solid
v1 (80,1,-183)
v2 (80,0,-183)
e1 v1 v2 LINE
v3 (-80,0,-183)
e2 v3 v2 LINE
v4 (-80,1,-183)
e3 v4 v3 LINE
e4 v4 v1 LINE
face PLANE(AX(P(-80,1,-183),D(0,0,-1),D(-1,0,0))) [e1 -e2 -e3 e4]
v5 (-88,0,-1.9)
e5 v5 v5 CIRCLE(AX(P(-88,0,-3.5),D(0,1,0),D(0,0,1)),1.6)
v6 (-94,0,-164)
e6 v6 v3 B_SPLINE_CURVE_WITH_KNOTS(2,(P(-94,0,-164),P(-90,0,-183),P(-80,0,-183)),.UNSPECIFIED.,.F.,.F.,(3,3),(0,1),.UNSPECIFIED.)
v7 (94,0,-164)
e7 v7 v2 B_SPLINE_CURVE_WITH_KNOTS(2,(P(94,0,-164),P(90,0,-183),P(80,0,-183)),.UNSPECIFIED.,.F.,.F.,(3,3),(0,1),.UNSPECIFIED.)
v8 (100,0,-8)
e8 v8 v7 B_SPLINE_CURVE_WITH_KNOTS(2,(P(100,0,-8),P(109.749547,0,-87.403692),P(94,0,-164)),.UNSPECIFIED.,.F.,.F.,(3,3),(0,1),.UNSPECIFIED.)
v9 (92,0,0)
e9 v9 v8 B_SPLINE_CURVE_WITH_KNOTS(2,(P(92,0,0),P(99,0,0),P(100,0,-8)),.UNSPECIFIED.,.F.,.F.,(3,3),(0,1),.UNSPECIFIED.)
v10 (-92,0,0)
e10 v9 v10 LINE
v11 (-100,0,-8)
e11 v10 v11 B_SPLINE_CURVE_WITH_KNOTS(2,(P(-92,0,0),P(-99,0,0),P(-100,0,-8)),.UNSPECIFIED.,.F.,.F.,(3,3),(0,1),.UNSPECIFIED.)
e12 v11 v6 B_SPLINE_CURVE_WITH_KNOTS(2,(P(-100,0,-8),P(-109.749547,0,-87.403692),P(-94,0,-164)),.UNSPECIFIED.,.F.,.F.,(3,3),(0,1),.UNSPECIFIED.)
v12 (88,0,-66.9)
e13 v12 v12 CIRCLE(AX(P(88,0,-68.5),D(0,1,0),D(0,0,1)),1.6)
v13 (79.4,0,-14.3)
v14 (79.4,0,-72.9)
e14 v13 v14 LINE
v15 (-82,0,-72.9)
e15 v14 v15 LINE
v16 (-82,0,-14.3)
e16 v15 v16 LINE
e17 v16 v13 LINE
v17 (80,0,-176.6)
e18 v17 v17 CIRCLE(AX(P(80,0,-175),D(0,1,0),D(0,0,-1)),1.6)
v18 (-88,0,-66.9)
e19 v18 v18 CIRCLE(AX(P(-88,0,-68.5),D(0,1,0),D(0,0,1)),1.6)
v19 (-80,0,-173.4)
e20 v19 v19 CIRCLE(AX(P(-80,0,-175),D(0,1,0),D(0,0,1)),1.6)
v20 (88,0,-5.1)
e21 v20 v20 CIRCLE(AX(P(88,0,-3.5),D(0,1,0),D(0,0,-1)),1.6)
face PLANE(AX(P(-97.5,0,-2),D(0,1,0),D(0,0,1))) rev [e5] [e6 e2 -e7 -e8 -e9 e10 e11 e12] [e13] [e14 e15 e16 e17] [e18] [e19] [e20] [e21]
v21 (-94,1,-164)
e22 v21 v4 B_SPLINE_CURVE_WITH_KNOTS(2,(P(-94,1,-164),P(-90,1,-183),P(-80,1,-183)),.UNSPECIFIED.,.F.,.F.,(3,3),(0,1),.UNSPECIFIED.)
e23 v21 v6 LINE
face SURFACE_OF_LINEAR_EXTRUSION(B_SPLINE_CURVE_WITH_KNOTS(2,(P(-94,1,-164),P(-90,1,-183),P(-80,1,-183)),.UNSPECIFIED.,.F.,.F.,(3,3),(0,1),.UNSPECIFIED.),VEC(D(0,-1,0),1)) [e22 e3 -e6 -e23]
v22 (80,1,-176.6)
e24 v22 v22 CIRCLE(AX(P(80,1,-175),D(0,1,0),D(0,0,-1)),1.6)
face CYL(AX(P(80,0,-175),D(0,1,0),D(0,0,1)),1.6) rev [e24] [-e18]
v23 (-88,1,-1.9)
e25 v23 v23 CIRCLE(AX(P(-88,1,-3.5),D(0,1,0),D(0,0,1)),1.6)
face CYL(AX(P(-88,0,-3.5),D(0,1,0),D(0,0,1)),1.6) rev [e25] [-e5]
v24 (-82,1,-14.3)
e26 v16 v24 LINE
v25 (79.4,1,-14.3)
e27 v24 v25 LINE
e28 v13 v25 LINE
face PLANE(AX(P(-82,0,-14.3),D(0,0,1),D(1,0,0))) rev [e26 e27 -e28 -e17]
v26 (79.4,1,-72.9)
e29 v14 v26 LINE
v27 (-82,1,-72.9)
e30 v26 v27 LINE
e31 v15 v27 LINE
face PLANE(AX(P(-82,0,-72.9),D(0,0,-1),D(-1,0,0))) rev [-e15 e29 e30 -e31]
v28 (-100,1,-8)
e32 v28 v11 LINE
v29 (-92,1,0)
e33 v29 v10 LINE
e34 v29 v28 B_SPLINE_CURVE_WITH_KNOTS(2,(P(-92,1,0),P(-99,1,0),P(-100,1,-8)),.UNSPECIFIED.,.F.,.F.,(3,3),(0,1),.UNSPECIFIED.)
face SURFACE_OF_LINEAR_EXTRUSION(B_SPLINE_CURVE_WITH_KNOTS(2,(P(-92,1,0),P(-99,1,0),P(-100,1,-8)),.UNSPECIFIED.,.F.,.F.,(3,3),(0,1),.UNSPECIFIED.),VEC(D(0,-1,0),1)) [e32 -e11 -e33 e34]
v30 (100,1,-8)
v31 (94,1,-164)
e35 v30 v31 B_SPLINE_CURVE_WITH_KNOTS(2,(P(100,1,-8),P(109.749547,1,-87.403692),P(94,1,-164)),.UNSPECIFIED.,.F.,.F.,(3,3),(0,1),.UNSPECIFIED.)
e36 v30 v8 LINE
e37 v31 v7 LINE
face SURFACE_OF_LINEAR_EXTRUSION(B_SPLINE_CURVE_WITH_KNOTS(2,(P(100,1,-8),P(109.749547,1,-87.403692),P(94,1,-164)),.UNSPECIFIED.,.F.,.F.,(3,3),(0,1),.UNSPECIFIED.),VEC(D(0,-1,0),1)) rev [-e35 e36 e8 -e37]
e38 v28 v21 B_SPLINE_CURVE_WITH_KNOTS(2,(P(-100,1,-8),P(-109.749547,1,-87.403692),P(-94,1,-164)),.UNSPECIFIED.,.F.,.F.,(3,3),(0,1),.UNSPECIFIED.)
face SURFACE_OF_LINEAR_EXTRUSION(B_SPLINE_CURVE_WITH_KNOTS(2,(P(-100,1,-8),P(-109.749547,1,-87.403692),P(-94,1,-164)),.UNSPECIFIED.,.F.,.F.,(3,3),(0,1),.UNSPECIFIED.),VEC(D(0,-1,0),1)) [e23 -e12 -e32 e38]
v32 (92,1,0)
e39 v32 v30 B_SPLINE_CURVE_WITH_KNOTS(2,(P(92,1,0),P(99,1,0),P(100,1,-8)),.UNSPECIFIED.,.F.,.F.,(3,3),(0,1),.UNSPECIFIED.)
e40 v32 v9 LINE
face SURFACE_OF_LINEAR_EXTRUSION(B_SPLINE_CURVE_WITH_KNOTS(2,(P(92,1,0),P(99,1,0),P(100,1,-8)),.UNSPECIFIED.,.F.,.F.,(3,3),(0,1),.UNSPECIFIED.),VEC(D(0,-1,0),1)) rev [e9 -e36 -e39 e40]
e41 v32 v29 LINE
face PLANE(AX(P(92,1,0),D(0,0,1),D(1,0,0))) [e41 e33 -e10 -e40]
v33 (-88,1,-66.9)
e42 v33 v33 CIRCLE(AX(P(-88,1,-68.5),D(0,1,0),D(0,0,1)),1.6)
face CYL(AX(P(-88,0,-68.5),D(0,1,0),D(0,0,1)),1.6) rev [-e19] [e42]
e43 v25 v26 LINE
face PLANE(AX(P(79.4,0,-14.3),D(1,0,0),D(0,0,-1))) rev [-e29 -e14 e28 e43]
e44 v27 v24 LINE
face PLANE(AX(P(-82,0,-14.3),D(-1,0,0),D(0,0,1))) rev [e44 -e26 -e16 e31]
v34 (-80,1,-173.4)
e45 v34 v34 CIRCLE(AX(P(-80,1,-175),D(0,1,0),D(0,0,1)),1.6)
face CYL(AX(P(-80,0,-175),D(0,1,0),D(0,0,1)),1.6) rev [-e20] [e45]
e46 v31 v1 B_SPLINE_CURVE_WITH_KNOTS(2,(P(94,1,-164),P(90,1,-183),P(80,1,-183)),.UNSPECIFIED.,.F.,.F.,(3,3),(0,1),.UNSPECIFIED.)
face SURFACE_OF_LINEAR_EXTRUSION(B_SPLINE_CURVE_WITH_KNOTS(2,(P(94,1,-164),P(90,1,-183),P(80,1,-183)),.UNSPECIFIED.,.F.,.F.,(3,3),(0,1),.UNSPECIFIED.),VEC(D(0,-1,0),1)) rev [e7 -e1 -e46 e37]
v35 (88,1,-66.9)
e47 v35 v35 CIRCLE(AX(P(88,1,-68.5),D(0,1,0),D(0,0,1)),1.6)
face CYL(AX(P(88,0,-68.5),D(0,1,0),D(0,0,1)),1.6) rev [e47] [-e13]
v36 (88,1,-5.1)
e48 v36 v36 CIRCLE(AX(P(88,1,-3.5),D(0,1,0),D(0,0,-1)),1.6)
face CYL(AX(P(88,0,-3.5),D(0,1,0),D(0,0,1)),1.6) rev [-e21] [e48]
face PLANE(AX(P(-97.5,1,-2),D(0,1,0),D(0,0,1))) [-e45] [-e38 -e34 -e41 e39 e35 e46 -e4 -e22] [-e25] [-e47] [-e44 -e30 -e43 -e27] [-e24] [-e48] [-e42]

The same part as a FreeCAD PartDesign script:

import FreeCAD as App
import Part
import Sketcher

V = App.Vector

doc = App.newDocument("Part")
body = doc.addObject("PartDesign::Body", "Body")

# Sketch on XZ plane
sketch1 = body.newObject("Sketcher::SketchObject", "Sketch")
sketch1.AttachmentSupport = (doc.getObject("XZ_Plane"), [""])
sketch1.MapMode = "FlatFace"
sketch1.addGeometry(Part.LineSegment(V(-92, 0, 0), V(92, 0, 0)), False)
sketch1.addGeometry(Part.BSplineCurve([V(92, 0, 0), V(99, 0, 0), V(100, -8, 0)], [3, 3], [0, 1], False, 2, [1, 1, 1], False), False)
sketch1.addGeometry(Part.BSplineCurve([V(100, -8, 0), V(109.749547, -87.403692, 0), V(94, -164, 0)], [3, 3], [0, 1], False, 2, [1, 1, 1], False), False)
sketch1.addGeometry(Part.BSplineCurve([V(94, -164, 0), V(90, -183, 0), V(80, -183, 0)], [3, 3], [0, 1], False, 2, [1, 1, 1], False), False)
sketch1.addGeometry(Part.LineSegment(V(80, -183, 0), V(-80, -183, 0)), False)
sketch1.addGeometry(Part.BSplineCurve([V(-94, -164, 0), V(-90, -183, 0), V(-80, -183, 0)], [3, 3], [0, 1], False, 2, [1, 1, 1], False), False)
sketch1.addGeometry(Part.BSplineCurve([V(-100, -8, 0), V(-109.749547, -87.403692, 0), V(-94, -164, 0)], [3, 3], [0, 1], False, 2, [1, 1, 1], False), False)
sketch1.addGeometry(Part.BSplineCurve([V(-92, 0, 0), V(-99, 0, 0), V(-100, -8, 0)], [3, 3], [0, 1], False, 2, [1, 1, 1], False), False)
sketch1.addConstraint(Sketcher.Constraint("Block", 1))
sketch1.addConstraint(Sketcher.Constraint("Block", 2))
sketch1.addConstraint(Sketcher.Constraint("Block", 3))
sketch1.addConstraint(Sketcher.Constraint("Block", 5))
sketch1.addConstraint(Sketcher.Constraint("Block", 6))
sketch1.addConstraint(Sketcher.Constraint("Block", 7))
sketch1.addConstraint(Sketcher.Constraint("Coincident", 0, 2, 1, 1))
sketch1.addConstraint(Sketcher.Constraint("Coincident", 3, 2, 4, 1))
sketch1.addConstraint(Sketcher.Constraint("Coincident", 4, 2, 5, 2))
sketch1.addConstraint(Sketcher.Constraint("Coincident", 7, 1, 0, 1))
pad1 = body.newObject("PartDesign::Pad", "Pad")
pad1.Profile = sketch1
pad1.Length = 1
pad1.Reversed = True

# Sketch on XZ plane
sketch2 = body.newObject("Sketcher::SketchObject", "Sketch001")
sketch2.AttachmentSupport = (doc.getObject("XZ_Plane"), [""])
sketch2.MapMode = "FlatFace"
sketch2.AttachmentOffset = App.Placement(V(0, 0, -1), App.Rotation())
sketch2.addGeometry(Part.Circle(V(-88, -3.5, 0), V(0, 0, 1), 1.6), False)
sketch2.addGeometry(Part.Circle(V(88, -3.5, 0), V(0, 0, 1), 1.6), False)
sketch2.addGeometry(Part.Circle(V(-80, -175, 0), V(0, 0, 1), 1.6), False)
sketch2.addGeometry(Part.Circle(V(80, -175, 0), V(0, 0, 1), 1.6), False)
sketch2.addGeometry(Part.Circle(V(-88, -68.5, 0), V(0, 0, 1), 1.6), False)
sketch2.addGeometry(Part.Circle(V(88, -68.5, 0), V(0, 0, 1), 1.6), False)
sketch2.addGeometry(Part.LineSegment(V(-82, -72.9, 0), V(-82, -14.3, 0)), False)
sketch2.addGeometry(Part.LineSegment(V(-82, -14.3, 0), V(79.4, -14.3, 0)), False)
sketch2.addGeometry(Part.LineSegment(V(79.4, -14.3, 0), V(79.4, -72.9, 0)), False)
sketch2.addGeometry(Part.LineSegment(V(79.4, -72.9, 0), V(-82, -72.9, 0)), False)
sketch2.addConstraint(Sketcher.Constraint("Coincident", 6, 2, 7, 1))
sketch2.addConstraint(Sketcher.Constraint("Coincident", 7, 2, 8, 1))
sketch2.addConstraint(Sketcher.Constraint("Coincident", 8, 2, 9, 1))
sketch2.addConstraint(Sketcher.Constraint("Coincident", 9, 2, 6, 1))
sketch2.addConstraint(Sketcher.Constraint("Vertical", 6))
sketch2.addConstraint(Sketcher.Constraint("Horizontal", 7))
sketch2.addConstraint(Sketcher.Constraint("Vertical", 8))
sketch2.addConstraint(Sketcher.Constraint("Horizontal", 9))
sketch2.addConstraint(Sketcher.Constraint("Equal", 0, 1))
sketch2.addConstraint(Sketcher.Constraint("Equal", 1, 2))
sketch2.addConstraint(Sketcher.Constraint("Equal", 2, 3))
sketch2.addConstraint(Sketcher.Constraint("Equal", 3, 4))
sketch2.addConstraint(Sketcher.Constraint("Equal", 4, 5))
sketch2.addConstraint(Sketcher.Constraint("Symmetric", 0, 3, 1, 3, -2))
sketch2.addConstraint(Sketcher.Constraint("Symmetric", 2, 3, 3, 3, -2))
sketch2.addConstraint(Sketcher.Constraint("Symmetric", 4, 3, 5, 3, -2))
sketch2.addConstraint(Sketcher.Constraint("Vertical", 0, 3, 4, 3))
sketch2.addConstraint(Sketcher.Constraint("Diameter", 0, 3.2))
sketch2.addConstraint(Sketcher.Constraint("DistanceX", 7, 1, 7, 2, 161.4))
sketch2.addConstraint(Sketcher.Constraint("DistanceY", 6, 1, 6, 2, 58.6))
sketch2.addConstraint(Sketcher.Constraint("DistanceX", 0, 3, -1, 1, 88.0))
sketch2.addConstraint(Sketcher.Constraint("DistanceX", 2, 3, -1, 1, 80.0))
sketch2.addConstraint(Sketcher.Constraint("DistanceY", 2, 3, -1, 1, 175.0))
sketch2.addConstraint(Sketcher.Constraint("DistanceX", 6, 2, -1, 1, 82.0))
sketch2.addConstraint(Sketcher.Constraint("DistanceY", 4, 3, 0, 3, 65.0))
sketch2.addConstraint(Sketcher.Constraint("DistanceY", 0, 3, -1, 1, 3.5))
sketch2.addConstraint(Sketcher.Constraint("DistanceY", 6, 2, -1, 1, 14.3))
pocket1 = body.newObject("PartDesign::Pocket", "Pocket")
pocket1.Profile = sketch2
pocket1.Type = "ThroughAll"
pocket1.Reversed = True

doc.recompute()
